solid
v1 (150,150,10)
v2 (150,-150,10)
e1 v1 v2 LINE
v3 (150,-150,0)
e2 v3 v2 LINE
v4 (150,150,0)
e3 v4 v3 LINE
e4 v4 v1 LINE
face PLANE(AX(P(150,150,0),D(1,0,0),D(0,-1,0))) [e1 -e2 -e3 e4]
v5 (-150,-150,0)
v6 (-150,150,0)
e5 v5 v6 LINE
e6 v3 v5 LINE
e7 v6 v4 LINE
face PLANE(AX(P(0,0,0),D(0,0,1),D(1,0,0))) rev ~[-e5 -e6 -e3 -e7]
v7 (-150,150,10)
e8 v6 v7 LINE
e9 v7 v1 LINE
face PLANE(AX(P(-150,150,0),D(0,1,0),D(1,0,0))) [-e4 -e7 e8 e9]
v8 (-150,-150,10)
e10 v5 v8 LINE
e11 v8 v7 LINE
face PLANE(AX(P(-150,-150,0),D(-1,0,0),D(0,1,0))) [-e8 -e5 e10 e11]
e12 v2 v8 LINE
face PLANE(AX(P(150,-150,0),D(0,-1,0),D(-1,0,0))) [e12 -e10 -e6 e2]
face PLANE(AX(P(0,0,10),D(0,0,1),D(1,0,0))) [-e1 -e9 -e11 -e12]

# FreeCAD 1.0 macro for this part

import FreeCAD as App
import Part
import Sketcher

V = App.Vector


def add_polygon(sketch, points):
    """Adds a closed chain of lines whose ends are joined by coincident constraints."""
    first, n = sketch.GeometryCount, len(points)
    for a, b in zip(points, points[1:] + points[:1]):
        sketch.addGeometry(Part.LineSegment(App.Vector(*a, 0), App.Vector(*b, 0)), False)
    for i in range(n):
        sketch.addConstraint(Sketcher.Constraint("Coincident", first + i, 2, first + (i + 1) % n, 1))

doc = App.newDocument("Part")
params = doc.addObject("Spreadsheet::Sheet", "Params")
for row, (alias, value) in enumerate([
    ("sketch1_width", "300 mm"),
    ("pad1_length", "10 mm"),
], start=1):
    params.set(f"A{row}", alias)
    params.set(f"B{row}", "=" + value)
    params.setAlias(f"B{row}", alias)

body = doc.addObject("PartDesign::Body", "Body")

# Sketch on XY plane
sketch1 = body.newObject("Sketcher::SketchObject", "Sketch")
sketch1.AttachmentSupport = (doc.getObject("XY_Plane"), [""])
sketch1.MapMode = "FlatFace"
add_polygon(sketch1, [(150, 150), (-150, 150), (-150, -150), (150, -150)])  # lines 0-3
sketch1.addConstraint([
    Sketcher.Constraint("Horizontal", 0),
    Sketcher.Constraint("Vertical", 1),
    Sketcher.Constraint("Horizontal", 2),
    Sketcher.Constraint("Vertical", 3),
    Sketcher.Constraint("Symmetric", 0, 2, 2, 2, -1, 1),
    Sketcher.Constraint("Equal", 2, 1),
    Sketcher.Constraint("DistanceX", 0, 2, 0, 1, 300.0),
])
sketch1.setExpression("Constraints[10]", "Params.sketch1_width")
pad1 = body.newObject("PartDesign::Pad", "Pad")
pad1.Profile = sketch1
pad1.setExpression("Length", "Params.pad1_length")

doc.recompute()
